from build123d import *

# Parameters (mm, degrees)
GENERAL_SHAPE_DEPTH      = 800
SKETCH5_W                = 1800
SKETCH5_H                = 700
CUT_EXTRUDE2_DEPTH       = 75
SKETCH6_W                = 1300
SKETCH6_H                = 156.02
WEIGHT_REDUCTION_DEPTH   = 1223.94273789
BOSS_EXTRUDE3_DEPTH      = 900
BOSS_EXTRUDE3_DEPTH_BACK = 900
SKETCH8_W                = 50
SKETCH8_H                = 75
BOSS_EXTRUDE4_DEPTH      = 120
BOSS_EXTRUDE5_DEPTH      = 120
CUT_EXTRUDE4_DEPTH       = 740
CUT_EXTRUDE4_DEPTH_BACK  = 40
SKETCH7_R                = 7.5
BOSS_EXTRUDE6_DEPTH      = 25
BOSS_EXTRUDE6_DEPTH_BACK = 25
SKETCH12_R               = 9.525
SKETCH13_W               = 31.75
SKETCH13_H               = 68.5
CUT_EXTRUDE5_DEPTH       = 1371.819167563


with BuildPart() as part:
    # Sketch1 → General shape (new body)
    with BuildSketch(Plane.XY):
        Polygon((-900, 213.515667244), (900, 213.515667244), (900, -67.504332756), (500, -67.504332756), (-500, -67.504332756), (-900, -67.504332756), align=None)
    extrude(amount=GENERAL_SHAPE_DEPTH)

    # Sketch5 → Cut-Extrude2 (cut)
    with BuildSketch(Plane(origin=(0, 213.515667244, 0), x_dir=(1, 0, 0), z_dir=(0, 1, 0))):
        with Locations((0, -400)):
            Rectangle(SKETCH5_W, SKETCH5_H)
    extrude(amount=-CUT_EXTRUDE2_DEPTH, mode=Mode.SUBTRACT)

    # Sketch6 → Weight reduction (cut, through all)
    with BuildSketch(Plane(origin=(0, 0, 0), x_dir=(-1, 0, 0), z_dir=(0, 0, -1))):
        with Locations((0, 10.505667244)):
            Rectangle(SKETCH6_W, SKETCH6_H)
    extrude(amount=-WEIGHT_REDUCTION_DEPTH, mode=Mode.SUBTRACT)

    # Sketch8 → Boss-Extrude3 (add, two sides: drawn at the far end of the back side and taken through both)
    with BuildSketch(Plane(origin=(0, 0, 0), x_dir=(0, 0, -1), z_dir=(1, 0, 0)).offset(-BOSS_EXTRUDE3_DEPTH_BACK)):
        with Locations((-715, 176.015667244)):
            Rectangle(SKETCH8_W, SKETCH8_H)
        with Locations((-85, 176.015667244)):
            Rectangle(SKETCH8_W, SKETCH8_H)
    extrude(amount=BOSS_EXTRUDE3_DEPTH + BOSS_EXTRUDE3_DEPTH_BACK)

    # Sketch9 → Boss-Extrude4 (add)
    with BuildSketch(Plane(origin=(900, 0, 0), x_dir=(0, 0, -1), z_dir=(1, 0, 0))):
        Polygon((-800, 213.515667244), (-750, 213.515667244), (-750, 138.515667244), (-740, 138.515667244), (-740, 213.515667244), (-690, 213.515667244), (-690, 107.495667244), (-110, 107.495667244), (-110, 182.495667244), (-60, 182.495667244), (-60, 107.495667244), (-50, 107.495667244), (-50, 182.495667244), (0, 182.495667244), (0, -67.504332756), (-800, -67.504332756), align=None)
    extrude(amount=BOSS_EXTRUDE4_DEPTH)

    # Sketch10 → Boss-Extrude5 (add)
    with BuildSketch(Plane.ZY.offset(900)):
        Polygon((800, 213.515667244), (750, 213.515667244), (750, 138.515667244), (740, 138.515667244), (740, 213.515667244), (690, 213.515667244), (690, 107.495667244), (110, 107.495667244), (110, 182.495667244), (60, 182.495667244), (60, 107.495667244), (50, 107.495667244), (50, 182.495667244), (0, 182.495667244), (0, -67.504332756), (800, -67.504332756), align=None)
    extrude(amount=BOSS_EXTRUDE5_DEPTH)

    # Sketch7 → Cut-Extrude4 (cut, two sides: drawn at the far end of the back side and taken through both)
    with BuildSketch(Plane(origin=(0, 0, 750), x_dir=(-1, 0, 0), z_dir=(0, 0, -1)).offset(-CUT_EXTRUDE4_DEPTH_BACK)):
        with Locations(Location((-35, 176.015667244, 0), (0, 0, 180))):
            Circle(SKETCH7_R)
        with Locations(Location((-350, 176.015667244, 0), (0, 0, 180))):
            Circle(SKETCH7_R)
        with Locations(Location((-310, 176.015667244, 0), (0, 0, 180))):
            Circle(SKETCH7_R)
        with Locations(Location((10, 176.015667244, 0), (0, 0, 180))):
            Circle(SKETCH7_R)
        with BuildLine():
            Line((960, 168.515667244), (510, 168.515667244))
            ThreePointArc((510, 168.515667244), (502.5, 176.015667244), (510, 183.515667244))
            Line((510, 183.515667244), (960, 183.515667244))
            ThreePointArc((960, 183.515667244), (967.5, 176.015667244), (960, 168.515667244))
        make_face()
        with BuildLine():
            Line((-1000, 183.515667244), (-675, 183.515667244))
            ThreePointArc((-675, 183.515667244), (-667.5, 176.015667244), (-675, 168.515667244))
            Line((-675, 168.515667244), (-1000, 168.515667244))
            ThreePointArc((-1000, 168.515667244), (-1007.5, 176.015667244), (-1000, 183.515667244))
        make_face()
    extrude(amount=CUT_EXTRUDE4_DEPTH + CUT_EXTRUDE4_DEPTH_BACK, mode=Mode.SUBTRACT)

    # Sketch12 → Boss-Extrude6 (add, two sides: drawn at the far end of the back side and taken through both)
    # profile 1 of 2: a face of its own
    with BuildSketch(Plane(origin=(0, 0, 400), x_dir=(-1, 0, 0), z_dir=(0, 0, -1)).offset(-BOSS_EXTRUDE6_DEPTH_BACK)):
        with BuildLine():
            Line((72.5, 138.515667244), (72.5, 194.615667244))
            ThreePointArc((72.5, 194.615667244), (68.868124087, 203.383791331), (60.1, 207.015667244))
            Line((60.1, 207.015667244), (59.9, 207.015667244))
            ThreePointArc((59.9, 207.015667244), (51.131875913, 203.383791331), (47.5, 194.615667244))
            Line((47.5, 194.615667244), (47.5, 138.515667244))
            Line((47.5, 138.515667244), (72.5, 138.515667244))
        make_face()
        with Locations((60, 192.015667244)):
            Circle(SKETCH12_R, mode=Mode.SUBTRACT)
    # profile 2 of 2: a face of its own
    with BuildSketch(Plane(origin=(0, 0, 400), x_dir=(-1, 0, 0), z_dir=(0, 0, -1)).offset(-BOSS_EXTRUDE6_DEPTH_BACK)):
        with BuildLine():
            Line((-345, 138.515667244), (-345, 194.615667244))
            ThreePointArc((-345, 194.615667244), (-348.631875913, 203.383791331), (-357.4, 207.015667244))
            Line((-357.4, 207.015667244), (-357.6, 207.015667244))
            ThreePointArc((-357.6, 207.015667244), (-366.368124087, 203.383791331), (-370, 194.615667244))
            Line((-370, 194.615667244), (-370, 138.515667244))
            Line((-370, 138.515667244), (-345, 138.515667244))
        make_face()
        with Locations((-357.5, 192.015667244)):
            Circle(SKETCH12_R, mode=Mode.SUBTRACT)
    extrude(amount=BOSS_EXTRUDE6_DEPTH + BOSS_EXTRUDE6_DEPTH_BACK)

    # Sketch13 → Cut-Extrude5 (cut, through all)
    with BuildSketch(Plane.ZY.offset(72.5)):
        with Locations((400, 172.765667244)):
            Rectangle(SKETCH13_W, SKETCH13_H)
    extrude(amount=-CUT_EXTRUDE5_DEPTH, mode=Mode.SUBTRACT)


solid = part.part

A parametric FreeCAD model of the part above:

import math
import FreeCAD as App
import Part
import Sketcher
from FreeCAD import Vector
Q = App.Units.Quantity

doc = App.newDocument("Part")
params = doc.addObject("Spreadsheet::Sheet", "Params")
for row, (alias, value) in enumerate([
    ("sketch1_width", "1800 mm"),
    ("sketch1_height", "281.02 mm"),
    ("pad1_length", "800 mm"),
    ("sketch2_width", "1800 mm"),
    ("sketch2_height", "700 mm"),
    ("pocket1_length", "75 mm"),
    ("sketch3_width", "1300 mm"),
    ("sketch3_height", "156.02 mm"),
    ("sketch4_width", "75 mm"),
    ("sketch4_height", "50 mm"),
    ("pad2_length", "900 mm"),
    ("pad2_length2", "900 mm"),
    ("sketch5_width", "250 mm"),
    ("sketch5_width2", "75 mm"),
    ("sketch5_height", "50 mm"),
    ("sketch5_height2", "800 mm"),
    ("sketch5_height3", "10 mm"),
    ("pad3_length", "120 mm"),
    ("sketch6_width", "75 mm"),
    ("sketch6_width2", "250 mm"),
    ("sketch6_height", "50 mm"),
    ("sketch6_height2", "10 mm"),
    ("sketch6_height3", "580 mm"),
    ("pad4_length", "120 mm"),
    ("sketch7_diameter", "15 mm"),
    ("sketch7_width", "450 mm"),
    ("sketch7_width2", "325 mm"),
    ("pocket3_length", "740 mm"),
    ("pocket3_length2", "40 mm"),
    ("sketch8_radius", "12.4 mm"),
    ("sketch8_diameter", "19.05 mm"),
    ("sketch8_width", "25 mm"),
    ("sketch8_height", "56.1 mm"),
    ("pad5_length", "25 mm"),
    ("pad5_length2", "25 mm"),
    ("sketch9_width", "68.5 mm"),
    ("sketch9_height", "31.75 mm"),
], start=1):
    params.set(f"A{row}", alias)
    params.set(f"B{row}", "=" + value)
    params.setAlias(f"B{row}", alias)

body = doc.addObject("PartDesign::Body", "Body")

# Sketch on XY plane
sketch1 = body.newObject("Sketcher::SketchObject", "Sketch")
sketch1.AttachmentSupport = (doc.getObject("XY_Plane"), [""])
sketch1.MapMode = "FlatFace"
sketch1.addGeometry(Part.LineSegment(Vector(900, 213.515667, 0), Vector(-900, 213.515667, 0)), False)
sketch1.addGeometry(Part.LineSegment(Vector(-900, 213.515667, 0), Vector(-900, -67.504333, 0)), False)
sketch1.addGeometry(Part.LineSegment(Vector(-900, -67.504333, 0), Vector(900, -67.504333, 0)), False)
sketch1.addGeometry(Part.LineSegment(Vector(900, -67.504333, 0), Vector(900, 213.515667, 0)), False)
sketch1.addConstraint(Sketcher.Constraint("Coincident", 0, 2, 1, 1))
sketch1.addConstraint(Sketcher.Constraint("Coincident", 1, 2, 2, 1))
sketch1.addConstraint(Sketcher.Constraint("Coincident", 2, 2, 3, 1))
sketch1.addConstraint(Sketcher.Constraint("Coincident", 3, 2, 0, 1))
sketch1.addConstraint(Sketcher.Constraint("Horizontal", 0))
sketch1.addConstraint(Sketcher.Constraint("Vertical", 1))
sketch1.addConstraint(Sketcher.Constraint("Horizontal", 2))
sketch1.addConstraint(Sketcher.Constraint("Vertical", 3))
sketch1.addConstraint(Sketcher.Constraint("DistanceX", 0, 2, 0, 1, Q("1800 mm")))
sketch1.addConstraint(Sketcher.Constraint("DistanceX", 0, 2, -1, 1, Q("900 mm")))
sketch1.addConstraint(Sketcher.Constraint("DistanceY", 1, 2, 1, 1, Q("281.02 mm")))
sketch1.addConstraint(Sketcher.Constraint("DistanceY", -1, 1, 0, 2, Q("213.515667 mm")))
sketch1.setExpression("Constraints[8]", "Params.sketch1_width")
sketch1.setExpression("Constraints[10]", "Params.sketch1_height")
pad1 = body.newObject("PartDesign::Pad", "Pad")
pad1.Profile = sketch1
pad1.setExpression("Length", "Params.pad1_length")

# Sketch on XZ plane
sketch2 = body.newObject("Sketcher::SketchObject", "Sketch001")
sketch2.AttachmentSupport = (doc.getObject("XZ_Plane"), [""])
sketch2.MapMode = "FlatFace"
sketch2.AttachmentOffset = App.Placement(Vector(0, 0, -213.515667), App.Rotation())
sketch2.addGeometry(Part.LineSegment(Vector(-900, 50, 0), Vector(-900, 750, 0)), False)
sketch2.addGeometry(Part.LineSegment(Vector(-900, 750, 0), Vector(900, 750, 0)), False)
sketch2.addGeometry(Part.LineSegment(Vector(900, 750, 0), Vector(900, 50, 0)), False)
sketch2.addGeometry(Part.LineSegment(Vector(900, 50, 0), Vector(-900, 50, 0)), False)
sketch2.addConstraint(Sketcher.Constraint("Coincident", 0, 2, 1, 1))
sketch2.addConstraint(Sketcher.Constraint("Coincident", 1, 2, 2, 1))
sketch2.addConstraint(Sketcher.Constraint("Coincident", 2, 2, 3, 1))
sketch2.addConstraint(Sketcher.Constraint("Coincident", 3, 2, 0, 1))
sketch2.addConstraint(Sketcher.Constraint("Vertical", 0))
sketch2.addConstraint(Sketcher.Constraint("Horizontal", 1))
sketch2.addConstraint(Sketcher.Constraint("Vertical", 2))
sketch2.addConstraint(Sketcher.Constraint("Horizontal", 3))
sketch2.addConstraint(Sketcher.Constraint("DistanceX", 1, 1, 1, 2, Q("1800 mm")))
sketch2.addConstraint(Sketcher.Constraint("DistanceY", 0, 1, 0, 2, Q("700 mm")))
sketch2.addConstraint(Sketcher.Constraint("DistanceX", 0, 2, -1, 1, Q("900 mm")))
sketch2.addConstraint(Sketcher.Constraint("DistanceY", -1, 1, 0, 2, Q("750 mm")))
sketch2.setExpression("Constraints[8]", "Params.sketch2_width")
sketch2.setExpression("Constraints[9]", "Params.sketch2_height")
pocket1 = body.newObject("PartDesign::Pocket", "Pocket")
pocket1.Profile = sketch2
pocket1.setExpression("Length", "Params.pocket1_length")
pocket1.Reversed = True

# Sketch on XY plane
sketch3 = body.newObject("Sketcher::SketchObject", "Sketch002")
sketch3.AttachmentSupport = (doc.getObject("XY_Plane"), [""])
sketch3.MapMode = "FlatFace"
sketch3.addGeometry(Part.LineSegment(Vector(650, 88.515667, 0), Vector(650, -67.504333, 0)), False)
sketch3.addGeometry(Part.LineSegment(Vector(650, -67.504333, 0), Vector(-650, -67.504333, 0)), False)
sketch3.addGeometry(Part.LineSegment(Vector(-650, -67.504333, 0), Vector(-650, 88.515667, 0)), False)
sketch3.addGeometry(Part.LineSegment(Vector(-650, 88.515667, 0), Vector(650, 88.515667, 0)), False)
sketch3.addConstraint(Sketcher.Constraint("Coincident", 0, 2, 1, 1))
sketch3.addConstraint(Sketcher.Constraint("Coincident", 1, 2, 2, 1))
sketch3.addConstraint(Sketcher.Constraint("Coincident", 2, 2, 3, 1))
sketch3.addConstraint(Sketcher.Constraint("Coincident", 3, 2, 0, 1))
sketch3.addConstraint(Sketcher.Constraint("Vertical", 0))
sketch3.addConstraint(Sketcher.Constraint("Horizontal", 1))
sketch3.addConstraint(Sketcher.Constraint("Vertical", 2))
sketch3.addConstraint(Sketcher.Constraint("Horizontal", 3))
sketch3.addConstraint(Sketcher.Constraint("DistanceX", 1, 2, 1, 1, Q("1300 mm")))
sketch3.addConstraint(Sketcher.Constraint("DistanceX", -1, 1, 0, 2, Q("650 mm")))
sketch3.addConstraint(Sketcher.Constraint("DistanceY", 0, 2, 0, 1, Q("156.02 mm")))
sketch3.addConstraint(Sketcher.Constraint("DistanceY", 0, 2, -1, 1, Q("67.504333 mm")))
sketch3.setExpression("Constraints[8]", "Params.sketch3_width")
sketch3.setExpression("Constraints[10]", "Params.sketch3_height")
pocket2 = body.newObject("PartDesign::Pocket", "Pocket001")
pocket2.Profile = sketch3
pocket2.Type = "ThroughAll"
pocket2.Reversed = True

# Sketch on YZ plane
sketch4 = body.newObject("Sketcher::SketchObject", "Sketch003")
sketch4.AttachmentSupport = (doc.getObject("YZ_Plane"), [""])
sketch4.MapMode = "FlatFace"
sketch4.addGeometry(Part.LineSegment(Vector(213.515667, 740, 0), Vector(138.515667, 740, 0)), False)
sketch4.addGeometry(Part.LineSegment(Vector(138.515667, 740, 0), Vector(138.515667, 690, 0)), False)
sketch4.addGeometry(Part.LineSegment(Vector(138.515667, 690, 0), Vector(213.515667, 690, 0)), False)
sketch4.addGeometry(Part.LineSegment(Vector(213.515667, 690, 0), Vector(213.515667, 740, 0)), False)
sketch4.addGeometry(Part.LineSegment(Vector(213.515667, 110, 0), Vector(138.515667, 110, 0)), False)
sketch4.addGeometry(Part.LineSegment(Vector(138.515667, 110, 0), Vector(138.515667, 60, 0)), False)
sketch4.addGeometry(Part.LineSegment(Vector(138.515667, 60, 0), Vector(213.515667, 60, 0)), False)
sketch4.addGeometry(Part.LineSegment(Vector(213.515667, 60, 0), Vector(213.515667, 110, 0)), False)
sketch4.addConstraint(Sketcher.Constraint("Coincident", 0, 2, 1, 1))
sketch4.addConstraint(Sketcher.Constraint("Coincident", 1, 2, 2, 1))
sketch4.addConstraint(Sketcher.Constraint("Coincident", 2, 2, 3, 1))
sketch4.addConstraint(Sketcher.Constraint("Coincident", 3, 2, 0, 1))
sketch4.addConstraint(Sketcher.Constraint("Coincident", 4, 2, 5, 1))
sketch4.addConstraint(Sketcher.Constraint("Coincident", 5, 2, 6, 1))
sketch4.addConstraint(Sketcher.Constraint("Coincident", 6, 2, 7, 1))
sketch4.addConstraint(Sketcher.Constraint("Coincident", 7, 2, 4, 1))
sketch4.addConstraint(Sketcher.Constraint("Horizontal", 0))
sketch4.addConstraint(Sketcher.Constraint("Vertical", 1))
sketch4.addConstraint(Sketcher.Constraint("Horizontal", 2))
sketch4.addConstraint(Sketcher.Constraint("Vertical", 3))
sketch4.addConstraint(Sketcher.Constraint("Horizontal", 4))
sketch4.addConstraint(Sketcher.Constraint("Vertical", 5))
sketch4.addConstraint(Sketcher.Constraint("Horizontal", 6))
sketch4.addConstraint(Sketcher.Constraint("Vertical", 7))
sketch4.addConstraint(Sketcher.Constraint("Vertical", 1, 2, 4, 2))
sketch4.addConstraint(Sketcher.Constraint("Vertical", 3, 2, 6, 2))
sketch4.addConstraint(Sketcher.Constraint("Equal", 3, 5))
sketch4.addConstraint(Sketcher.Constraint("DistanceX", 0, 2, 0, 1, Q("75 mm")))
sketch4.addConstraint(Sketcher.Constraint("DistanceY", 1, 2, 1, 1, Q("50 mm")))
sketch4.addConstraint(Sketcher.Constraint("DistanceY", -1, 1, 0, 2, Q("740 mm")))
sketch4.addConstraint(Sketcher.Constraint("DistanceY", -1, 1, 4, 2, Q("110 mm")))
sketch4.addConstraint(Sketcher.Constraint("DistanceX", -1, 1, 0, 2, Q("138.515667 mm")))
sketch4.setExpression("Constraints[19]", "Params.sketch4_width")
sketch4.setExpression("Constraints[20]", "Params.sketch4_height")
pad2 = body.newObject("PartDesign::Pad", "Pad001")
pad2.Profile = sketch4
pad2.Type = "TwoLengths"
pad2.setExpression("Length", "Params.pad2_length")
pad2.setExpression("Length2", "Params.pad2_length2")

# Sketch on YZ plane
sketch5 = body.newObject("Sketcher::SketchObject", "Sketch004")
sketch5.AttachmentSupport = (doc.getObject("YZ_Plane"), [""])
sketch5.MapMode = "FlatFace"
sketch5.AttachmentOffset = App.Placement(Vector(0, 0, 900), App.Rotation())
sketch5.addGeometry(Part.LineSegment(Vector(213.515667, 750, 0), Vector(213.515667, 800, 0)), False)
sketch5.addGeometry(Part.LineSegment(Vector(213.515667, 800, 0), Vector(-67.504333, 800, 0)), False)
sketch5.addGeometry(Part.LineSegment(Vector(-67.504333, 800, 0), Vector(-67.504333, 0, 0)), False)
sketch5.addGeometry(Part.LineSegment(Vector(-67.504333, 0, 0), Vector(182.495667, 0, 0)), False)
sketch5.addGeometry(Part.LineSegment(Vector(182.495667, 0, 0), Vector(182.495667, 50, 0)), False)
sketch5.addGeometry(Part.LineSegment(Vector(182.495667, 50, 0), Vector(107.495667, 50, 0)), False)
sketch5.addGeometry(Part.LineSegment(Vector(107.495667, 50, 0), Vector(107.495667, 60, 0)), False)
sketch5.addGeometry(Part.LineSegment(Vector(107.495667, 60, 0), Vector(182.495667, 60, 0)), False)
sketch5.addGeometry(Part.LineSegment(Vector(182.495667, 60, 0), Vector(182.495667, 110, 0)), False)
sketch5.addGeometry(Part.LineSegment(Vector(182.495667, 110, 0), Vector(107.495667, 110, 0)), False)
sketch5.addGeometry(Part.LineSegment(Vector(107.495667, 110, 0), Vector(107.495667, 690, 0)), False)
sketch5.addGeometry(Part.LineSegment(Vector(107.495667, 690, 0), Vector(213.515667, 690, 0)), False)
sketch5.addGeometry(Part.LineSegment(Vector(213.515667, 690, 0), Vector(213.515667, 740, 0)), False)
sketch5.addGeometry(Part.LineSegment(Vector(213.515667, 740, 0), Vector(138.515667, 740, 0)), False)
sketch5.addGeometry(Part.LineSegment(Vector(138.515667, 740, 0), Vector(138.515667, 750, 0)), False)
sketch5.addGeometry(Part.LineSegment(Vector(138.515667, 750, 0), Vector(213.515667, 750, 0)), False)
sketch5.addConstraint(Sketcher.Constraint("Coincident", 0, 2, 1, 1))
sketch5.addConstraint(Sketcher.Constraint("Coincident", 1, 2, 2, 1))
sketch5.addConstraint(Sketcher.Constraint("Coincident", 2, 2, 3, 1))
sketch5.addConstraint(Sketcher.Constraint("Coincident", 3, 2, 4, 1))
sketch5.addConstraint(Sketcher.Constraint("Coincident", 4, 2, 5, 1))
sketch5.addConstraint(Sketcher.Constraint("Coincident", 5, 2, 6, 1))
sketch5.addConstraint(Sketcher.Constraint("Coincident", 6, 2, 7, 1))
sketch5.addConstraint(Sketcher.Constraint("Coincident", 7, 2, 8, 1))
sketch5.addConstraint(Sketcher.Constraint("Coincident", 8, 2, 9, 1))
sketch5.addConstraint(Sketcher.Constraint("Coincident", 9, 2, 10, 1))
sketch5.addConstraint(Sketcher.Constraint("Coincident", 10, 2, 11, 1))
sketch5.addConstraint(Sketcher.Constraint("Coincident", 11, 2, 12, 1))
sketch5.addConstraint(Sketcher.Constraint("Coincident", 12, 2, 13, 1))
sketch5.addConstraint(Sketcher.Constraint("Coincident", 13, 2, 14, 1))
sketch5.addConstraint(Sketcher.Constraint("Coincident", 14, 2, 15, 1))
sketch5.addConstraint(Sketcher.Constraint("Coincident", 15, 2, 0, 1))
sketch5.addConstraint(Sketcher.Constraint("Vertical", 0))
sketch5.addConstraint(Sketcher.Constraint("Horizontal", 1))
sketch5.addConstraint(Sketcher.Constraint("Vertical", 2))
sketch5.addConstraint(Sketcher.Constraint("Horizontal", 3))
sketch5.addConstraint(Sketcher.Constraint("Vertical", 4))
sketch5.addConstraint(Sketcher.Constraint("Horizontal", 5))
sketch5.addConstraint(Sketcher.Constraint("Vertical", 6))
sketch5.addConstraint(Sketcher.Constraint("Horizontal", 7))
sketch5.addConstraint(Sketcher.Constraint("Vertical", 8))
sketch5.addConstraint(Sketcher.Constraint("Horizontal", 9))
sketch5.addConstraint(Sketcher.Constraint("Vertical", 10))
sketch5.addConstraint(Sketcher.Constraint("Horizontal", 11))
sketch5.addConstraint(Sketcher.Constraint("Vertical", 12))
sketch5.addConstraint(Sketcher.Constraint("Horizontal", 13))
sketch5.addConstraint(Sketcher.Constraint("Vertical", 14))
sketch5.addConstraint(Sketcher.Constraint("Horizontal", 15))
sketch5.addConstraint(Sketcher.Constraint("PointOnObject", 2, 2, -1))
sketch5.addConstraint(Sketcher.Constraint("Vertical", 4, 2, 7, 2))
sketch5.addConstraint(Sketcher.Constraint("Vertical", 6, 2, 9, 2))
sketch5.addConstraint(Sketcher.Constraint("Vertical", 0, 2, 11, 2))
sketch5.addConstraint(Sketcher.Constraint("Equal", 9, 13))
sketch5.addConstraint(Sketcher.Constraint("Equal", 0, 4))
sketch5.addConstraint(Sketcher.Constraint("Equal", 4, 8))
sketch5.addConstraint(Sketcher.Constraint("Equal", 8, 12))
sketch5.addConstraint(Sketcher.Constraint("Equal", 6, 14))
sketch5.addConstraint(Sketcher.Constraint("DistanceX", 3, 1, 3, 2, Q("250 mm")))
sketch5.addConstraint(Sketcher.Constraint("DistanceX", 5, 2, 5, 1, Q("75 mm")))
sketch5.addConstraint(Sketcher.Constraint("DistanceY", 0, 1, 0, 2, Q("50 mm")))
sketch5.addConstraint(Sketcher.Constraint("DistanceY", 2, 2, 2, 1, Q("800 mm")))
sketch5.addConstraint(Sketcher.Constraint("DistanceY", 6, 1, 6, 2, Q("10 mm")))
sketch5.addConstraint(Sketcher.Constraint("DistanceX", 1, 2, 1, 1, Q("281.02 mm")))
sketch5.addConstraint(Sketcher.Constraint("DistanceX", -1, 1, 0, 2, Q("213.515667 mm")))
sketch5.setExpression("Constraints[41]", "Params.sketch5_width")
sketch5.setExpression("Constraints[42]", "Params.sketch5_width2")
sketch5.setExpression("Constraints[43]", "Params.sketch5_height")
sketch5.setExpression("Constraints[44]", "Params.sketch5_height2")
sketch5.setExpression("Constraints[45]", "Params.sketch5_height3")
pad3 = body.newObject("PartDesign::Pad", "Pad002")
pad3.Profile = sketch5
pad3.setExpression("Length", "Params.pad3_length")

# Sketch on YZ plane
sketch6 = body.newObject("Sketcher::SketchObject", "Sketch005")
sketch6.AttachmentSupport = (doc.getObject("YZ_Plane"), [""])
sketch6.MapMode = "FlatFace"
sketch6.AttachmentOffset = App.Placement(Vector(0, 0, -900), App.Rotation())
sketch6.addGeometry(Part.LineSegment(Vector(213.515667, 800, 0), Vector(213.515667, 750, 0)), False)
sketch6.addGeometry(Part.LineSegment(Vector(213.515667, 750, 0), Vector(138.515667, 750, 0)), False)
sketch6.addGeometry(Part.LineSegment(Vector(138.515667, 750, 0), Vector(138.515667, 740, 0)), False)
sketch6.addGeometry(Part.LineSegment(Vector(138.515667, 740, 0), Vector(213.515667, 740, 0)), False)
sketch6.addGeometry(Part.LineSegment(Vector(213.515667, 740, 0), Vector(213.515667, 690, 0)), False)
sketch6.addGeometry(Part.LineSegment(Vector(213.515667, 690, 0), Vector(107.495667, 690, 0)), False)
sketch6.addGeometry(Part.LineSegment(Vector(107.495667, 690, 0), Vector(107.495667, 110, 0)), False)
sketch6.addGeometry(Part.LineSegment(Vector(107.495667, 110, 0), Vector(182.495667, 110, 0)), False)
sketch6.addGeometry(Part.LineSegment(Vector(182.495667, 110, 0), Vector(182.495667, 60, 0)), False)
sketch6.addGeometry(Part.LineSegment(Vector(182.495667, 60, 0), Vector(107.495667, 60, 0)), False)
sketch6.addGeometry(Part.LineSegment(Vector(107.495667, 60, 0), Vector(107.495667, 50, 0)), False)
sketch6.addGeometry(Part.LineSegment(Vector(107.495667, 50, 0), Vector(182.495667, 50, 0)), False)
sketch6.addGeometry(Part.LineSegment(Vector(182.495667, 50, 0), Vector(182.495667, 0, 0)), False)
sketch6.addGeometry(Part.LineSegment(Vector(182.495667, 0, 0), Vector(-67.504333, 0, 0)), False)
sketch6.addGeometry(Part.LineSegment(Vector(-67.504333, 0, 0), Vector(-67.504333, 800, 0)), False)
sketch6.addGeometry(Part.LineSegment(Vector(-67.504333, 800, 0), Vector(213.515667, 800, 0)), False)
sketch6.addConstraint(Sketcher.Constraint("Coincident", 0, 2, 1, 1))
sketch6.addConstraint(Sketcher.Constraint("Coincident", 1, 2, 2, 1))
sketch6.addConstraint(Sketcher.Constraint("Coincident", 2, 2, 3, 1))
sketch6.addConstraint(Sketcher.Constraint("Coincident", 3, 2, 4, 1))
sketch6.addConstraint(Sketcher.Constraint("Coincident", 4, 2, 5, 1))
sketch6.addConstraint(Sketcher.Constraint("Coincident", 5, 2, 6, 1))
sketch6.addConstraint(Sketcher.Constraint("Coincident", 6, 2, 7, 1))
sketch6.addConstraint(Sketcher.Constraint("Coincident", 7, 2, 8, 1))
sketch6.addConstraint(Sketcher.Constraint("Coincident", 8, 2, 9, 1))
sketch6.addConstraint(Sketcher.Constraint("Coincident", 9, 2, 10, 1))
sketch6.addConstraint(Sketcher.Constraint("Coincident", 10, 2, 11, 1))
sketch6.addConstraint(Sketcher.Constraint("Coincident", 11, 2, 12, 1))
sketch6.addConstraint(Sketcher.Constraint("Coincident", 12, 2, 13, 1))
sketch6.addConstraint(Sketcher.Constraint("Coincident", 13, 2, 14, 1))
sketch6.addConstraint(Sketcher.Constraint("Coincident", 14, 2, 15, 1))
sketch6.addConstraint(Sketcher.Constraint("Coincident", 15, 2, 0, 1))
sketch6.addConstraint(Sketcher.Constraint("Vertical", 0))
sketch6.addConstraint(Sketcher.Constraint("Horizontal", 1))
sketch6.addConstraint(Sketcher.Constraint("Vertical", 2))
sketch6.addConstraint(Sketcher.Constraint("Horizontal", 3))
sketch6.addConstraint(Sketcher.Constraint("Vertical", 4))
sketch6.addConstraint(Sketcher.Constraint("Horizontal", 5))
sketch6.addConstraint(Sketcher.Constraint("Vertical", 6))
sketch6.addConstraint(Sketcher.Constraint("Horizontal", 7))
sketch6.addConstraint(Sketcher.Constraint("Vertical", 8))
sketch6.addConstraint(Sketcher.Constraint("Horizontal", 9))
sketch6.addConstraint(Sketcher.Constraint("Vertical", 10))
sketch6.addConstraint(Sketcher.Constraint("Horizontal", 11))
sketch6.addConstraint(Sketcher.Constraint("Vertical", 12))
sketch6.addConstraint(Sketcher.Constraint("Horizontal", 13))
sketch6.addConstraint(Sketcher.Constraint("Vertical", 14))
sketch6.addConstraint(Sketcher.Constraint("Horizontal", 15))
sketch6.addConstraint(Sketcher.Constraint("PointOnObject", 12, 2, -1))
sketch6.addConstraint(Sketcher.Constraint("Vertical", 0, 2, 3, 2))
sketch6.addConstraint(Sketcher.Constraint("Vertical", 6, 2, 9, 2))
sketch6.addConstraint(Sketcher.Constraint("Vertical", 8, 2, 11, 2))
sketch6.addConstraint(Sketcher.Constraint("Equal", 3, 7))
sketch6.addConstraint(Sketcher.Constraint("Equal", 0, 4))
sketch6.addConstraint(Sketcher.Constraint("Equal", 4, 8))
sketch6.addConstraint(Sketcher.Constraint("Equal", 2, 10))
sketch6.addConstraint(Sketcher.Constraint("Equal", 8, 12))
sketch6.addConstraint(Sketcher.Constraint("DistanceX", 1, 2, 1, 1, Q("75 mm")))
sketch6.addConstraint(Sketcher.Constraint("DistanceX", 13, 2, 13, 1, Q("250 mm")))
sketch6.addConstraint(Sketcher.Constraint("DistanceY", 0, 2, 0, 1, Q("50 mm")))
sketch6.addConstraint(Sketcher.Constraint("DistanceY", 2, 2, 2, 1, Q("10 mm")))
sketch6.addConstraint(Sketcher.Constraint("DistanceY", 6, 2, 6, 1, Q("580 mm")))
sketch6.addConstraint(Sketcher.Constraint("DistanceX", 5, 2, 5, 1, Q("106.02 mm")))
sketch6.addConstraint(Sketcher.Constraint("DistanceX", -1, 1, 0, 2, Q("213.515667 mm")))
sketch6.setExpression("Constraints[41]", "Params.sketch6_width")
sketch6.setExpression("Constraints[42]", "Params.sketch6_width2")
sketch6.setExpression("Constraints[43]", "Params.sketch6_height")
sketch6.setExpression("Constraints[44]", "Params.sketch6_height2")
sketch6.setExpression("Constraints[45]", "Params.sketch6_height3")
pad4 = body.newObject("PartDesign::Pad", "Pad003")
pad4.Profile = sketch6
pad4.setExpression("Length", "Params.pad4_length")
pad4.Reversed = True

# Sketch on XY plane
sketch7 = body.newObject("Sketcher::SketchObject", "Sketch006")
sketch7.AttachmentSupport = (doc.getObject("XY_Plane"), [""])
sketch7.MapMode = "FlatFace"
sketch7.AttachmentOffset = App.Placement(Vector(0, 0, 750), App.Rotation())
sketch7.addGeometry(Part.Circle(Vector(35, 176.015667, 0), Vector(0, 0, 1), 7.5), False)
sketch7.addGeometry(Part.Circle(Vector(350, 176.015667, 0), Vector(0, 0, 1), 7.5), False)
sketch7.addGeometry(Part.Circle(Vector(310, 176.015667, 0), Vector(0, 0, 1), 7.5), False)
sketch7.addGeometry(Part.Circle(Vector(-10, 176.015667, 0), Vector(0, 0, 1), 7.5), False)
sketch7.addGeometry(Part.LineSegment(Vector(-510, 168.515667, 0), Vector(-960, 168.515667, 0)), False)
sketch7.addGeometry(Part.ArcOfCircle(Part.Circle(Vector(-960, 176.015667, 0), Vector(0, 0, 1), 7.5), math.radians(90), math.radians(270)), False)
sketch7.addGeometry(Part.LineSegment(Vector(-960, 183.515667, 0), Vector(-510, 183.515667, 0)), False)
sketch7.addGeometry(Part.ArcOfCircle(Part.Circle(Vector(-510, 176.015667, 0), Vector(0, 0, 1), 7.5), math.radians(-90), math.radians(90)), False)
sketch7.addGeometry(Part.LineSegment(Vector(675, 183.515667, 0), Vector(1000, 183.515667, 0)), False)
sketch7.addGeometry(Part.ArcOfCircle(Part.Circle(Vector(1000, 176.015667, 0), Vector(0, 0, 1), 7.5), math.radians(-90), math.radians(90)), False)
sketch7.addGeometry(Part.LineSegment(Vector(1000, 168.515667, 0), Vector(675, 168.515667, 0)), False)
sketch7.addGeometry(Part.ArcOfCircle(Part.Circle(Vector(675, 176.015667, 0), Vector(0, 0, 1), 7.5), math.radians(90), math.radians(270)), False)
sketch7.addConstraint(Sketcher.Constraint("Tangent", 4, 2, 5, 2))
sketch7.addConstraint(Sketcher.Constraint("Tangent", 5, 1, 6, 1))
sketch7.addConstraint(Sketcher.Constraint("Tangent", 6, 2, 7, 2))
sketch7.addConstraint(Sketcher.Constraint("Tangent", 7, 1, 4, 1))
sketch7.addConstraint(Sketcher.Constraint("Tangent", 8, 2, 9, 2))
sketch7.addConstraint(Sketcher.Constraint("Tangent", 9, 1, 10, 1))
sketch7.addConstraint(Sketcher.Constraint("Tangent", 10, 2, 11, 2))
sketch7.addConstraint(Sketcher.Constraint("Tangent", 11, 1, 8, 1))
sketch7.addConstraint(Sketcher.Constraint("Horizontal", 4))
sketch7.addConstraint(Sketcher.Constraint("Horizontal", 6))
sketch7.addConstraint(Sketcher.Constraint("Horizontal", 8))
sketch7.addConstraint(Sketcher.Constraint("Horizontal", 10))
sketch7.addConstraint(Sketcher.Constraint("Equal", 0, 1))
sketch7.addConstraint(Sketcher.Constraint("Equal", 1, 2))
sketch7.addConstraint(Sketcher.Constraint("Equal", 2, 3))
sketch7.addConstraint(Sketcher.Constraint("Equal", 3, 5))
sketch7.addConstraint(Sketcher.Constraint("Equal", 7, 9))
sketch7.addConstraint(Sketcher.Constraint("Horizontal", 0, 3, 1, 3))
sketch7.addConstraint(Sketcher.Constraint("Horizontal", 1, 3, 2, 3))
sketch7.addConstraint(Sketcher.Constraint("Horizontal", 2, 3, 3, 3))
sketch7.addConstraint(Sketcher.Constraint("Horizontal", 3, 3, 5, 3))
sketch7.addConstraint(Sketcher.Constraint("Horizontal", 7, 3, 9, 3))
sketch7.addConstraint(Sketcher.Constraint("Diameter", 0, Q("15 mm")))
sketch7.addConstraint(Sketcher.Constraint("DistanceX", 4, 2, 4, 1, Q("450 mm")))
sketch7.addConstraint(Sketcher.Constraint("DistanceX", 8, 1, 8, 2, Q("325 mm")))
sketch7.addConstraint(Sketcher.Constraint("DistanceX", -1, 1, 0, 3, Q("35 mm")))
sketch7.addConstraint(Sketcher.Constraint("DistanceX", -1, 1, 1, 3, Q("350 mm")))
sketch7.addConstraint(Sketcher.Constraint("DistanceX", -1, 1, 2, 3, Q("310 mm")))
sketch7.addConstraint(Sketcher.Constraint("DistanceX", 3, 3, -1, 1, Q("10 mm")))
sketch7.addConstraint(Sketcher.Constraint("DistanceX", 5, 3, -1, 1, Q("960 mm")))
sketch7.addConstraint(Sketcher.Constraint("DistanceX", -1, 1, 9, 3, Q("1000 mm")))
sketch7.addConstraint(Sketcher.Constraint("DistanceY", -1, 1, 0, 3, Q("176.015667 mm")))
sketch7.setExpression("Constraints[22]", "Params.sketch7_diameter")
sketch7.setExpression("Constraints[23]", "Params.sketch7_width")
sketch7.setExpression("Constraints[24]", "Params.sketch7_width2")
pocket3 = body.newObject("PartDesign::Pocket", "Pocket002")
pocket3.Profile = sketch7
pocket3.Type = "TwoLengths"
pocket3.setExpression("Length", "Params.pocket3_length")
pocket3.setExpression("Length2", "Params.pocket3_length2")

# Sketch on XY plane
sketch8 = body.newObject("Sketcher::SketchObject", "Sketch007")
sketch8.AttachmentSupport = (doc.getObject("XY_Plane"), [""])
sketch8.MapMode = "FlatFace"
sketch8.AttachmentOffset = App.Placement(Vector(0, 0, 400), App.Rotation())
sketch8.addGeometry(Part.LineSegment(Vector(-72.5, 138.515667, 0), Vector(-72.5, 194.615667, 0)), False)
sketch8.addGeometry(Part.ArcOfCircle(Part.Circle(Vector(-60.1, 194.615667, 0), Vector(0, 0, 1), 12.4), math.radians(90), math.radians(180)), False)
sketch8.addGeometry(Part.LineSegment(Vector(-60.1, 207.015667, 0), Vector(-59.9, 207.015667, 0)), False)
sketch8.addGeometry(Part.ArcOfCircle(Part.Circle(Vector(-59.9, 194.615667, 0), Vector(0, 0, 1), 12.4), math.radians(0), math.radians(90)), False)
sketch8.addGeometry(Part.LineSegment(Vector(-47.5, 194.615667, 0), Vector(-47.5, 138.515667, 0)), False)
sketch8.addGeometry(Part.LineSegment(Vector(-47.5, 138.515667, 0), Vector(-72.5, 138.515667, 0)), False)
sketch8.addGeometry(Part.Circle(Vector(-60, 192.015667, 0), Vector(0, 0, 1), 9.525), False)
sketch8.addGeometry(Part.LineSegment(Vector(345, 138.515667, 0), Vector(345, 194.615667, 0)), False)
sketch8.addGeometry(Part.ArcOfCircle(Part.Circle(Vector(357.4, 194.615667, 0), Vector(0, 0, 1), 12.4), math.radians(90), math.radians(180)), False)
sketch8.addGeometry(Part.LineSegment(Vector(357.4, 207.015667, 0), Vector(357.6, 207.015667, 0)), False)
sketch8.addGeometry(Part.ArcOfCircle(Part.Circle(Vector(357.6, 194.615667, 0), Vector(0, 0, 1), 12.4), math.radians(0), math.radians(90)), False)
sketch8.addGeometry(Part.LineSegment(Vector(370, 194.615667, 0), Vector(370, 138.515667, 0)), False)
sketch8.addGeometry(Part.LineSegment(Vector(370, 138.515667, 0), Vector(345, 138.515667, 0)), False)
sketch8.addGeometry(Part.Circle(Vector(357.5, 192.015667, 0), Vector(0, 0, 1), 9.525), False)
sketch8.addConstraint(Sketcher.Constraint("Tangent", 0, 2, 1, 2))
sketch8.addConstraint(Sketcher.Constraint("Tangent", 1, 1, 2, 1))
sketch8.addConstraint(Sketcher.Constraint("Tangent", 2, 2, 3, 2))
sketch8.addConstraint(Sketcher.Constraint("Tangent", 3, 1, 4, 1))
sketch8.addConstraint(Sketcher.Constraint("Coincident", 4, 2, 5, 1))
sketch8.addConstraint(Sketcher.Constraint("Coincident", 5, 2, 0, 1))
sketch8.addConstraint(Sketcher.Constraint("Tangent", 7, 2, 8, 2))
sketch8.addConstraint(Sketcher.Constraint("Tangent", 8, 1, 9, 1))
sketch8.addConstraint(Sketcher.Constraint("Tangent", 9, 2, 10, 2))
sketch8.addConstraint(Sketcher.Constraint("Tangent", 10, 1, 11, 1))
sketch8.addConstraint(Sketcher.Constraint("Coincident", 11, 2, 12, 1))
sketch8.addConstraint(Sketcher.Constraint("Coincident", 12, 2, 7, 1))
sketch8.addConstraint(Sketcher.Constraint("Vertical", 0))
sketch8.addConstraint(Sketcher.Constraint("Horizontal", 2))
sketch8.addConstraint(Sketcher.Constraint("Vertical", 4))
sketch8.addConstraint(Sketcher.Constraint("Horizontal", 5))
sketch8.addConstraint(Sketcher.Constraint("Vertical", 7))
sketch8.addConstraint(Sketcher.Constraint("Horizontal", 9))
sketch8.addConstraint(Sketcher.Constraint("Vertical", 11))
sketch8.addConstraint(Sketcher.Constraint("Horizontal", 12))
sketch8.addConstraint(Sketcher.Constraint("Equal", 1, 3))
sketch8.addConstraint(Sketcher.Constraint("Equal", 3, 8))
sketch8.addConstraint(Sketcher.Constraint("Equal", 8, 10))
sketch8.addConstraint(Sketcher.Constraint("Equal", 6, 13))
sketch8.addConstraint(Sketcher.Constraint("Horizontal", 3, 3, 8, 3))
sketch8.addConstraint(Sketcher.Constraint("Horizontal", 6, 3, 13, 3))
sketch8.addConstraint(Sketcher.Constraint("Horizontal", 5, 2, 11, 2))
sketch8.addConstraint(Sketcher.Constraint("Equal", 2, 9))
sketch8.addConstraint(Sketcher.Constraint("Radius", 1, Q("12.4 mm")))
sketch8.addConstraint(Sketcher.Constraint("Diameter", 6, Q("19.05 mm")))
sketch8.addConstraint(Sketcher.Constraint("DistanceX", 5, 2, 5, 1, Q("25 mm")))
sketch8.addConstraint(Sketcher.Constraint("DistanceY", 0, 1, 0, 2, Q("56.1 mm")))
sketch8.addConstraint(Sketcher.Constraint("DistanceX", 6, 3, -1, 1, Q("60 mm")))
sketch8.addConstraint(Sketcher.Constraint("DistanceX", -1, 1, 7, 2, Q("345 mm")))
sketch8.addConstraint(Sketcher.Constraint("DistanceX", 0, 2, 13, 3, Q("430 mm")))
sketch8.addConstraint(Sketcher.Constraint("DistanceY", 6, 3, 1, 1, Q("15 mm")))
sketch8.addConstraint(Sketcher.Constraint("DistanceX", 1, 3, -1, 1, Q("60.1 mm")))
sketch8.addConstraint(Sketcher.Constraint("DistanceY", -1, 1, 1, 3, Q("194.615667 mm")))
sketch8.setExpression("Constraints[28]", "Params.sketch8_radius")
sketch8.setExpression("Constraints[29]", "Params.sketch8_diameter")
sketch8.setExpression("Constraints[30]", "Params.sketch8_width")
sketch8.setExpression("Constraints[31]", "Params.sketch8_height")
pad5 = body.newObject("PartDesign::Pad", "Pad004")
pad5.Profile = sketch8
pad5.Type = "TwoLengths"
pad5.setExpression("Length", "Params.pad5_length")
pad5.setExpression("Length2", "Params.pad5_length2")
pad5.Reversed = True

# Sketch on YZ plane
sketch9 = body.newObject("Sketcher::SketchObject", "Sketch008")
sketch9.AttachmentSupport = (doc.getObject("YZ_Plane"), [""])
sketch9.MapMode = "FlatFace"
sketch9.AttachmentOffset = App.Placement(Vector(0, 0, -72.5), App.Rotation())
sketch9.addGeometry(Part.LineSegment(Vector(207.015667, 384.125, 0), Vector(138.515667, 384.125, 0)), False)
sketch9.addGeometry(Part.LineSegment(Vector(138.515667, 384.125, 0), Vector(138.515667, 415.875, 0)), False)
sketch9.addGeometry(Part.LineSegment(Vector(138.515667, 415.875, 0), Vector(207.015667, 415.875, 0)), False)
sketch9.addGeometry(Part.LineSegment(Vector(207.015667, 415.875, 0), Vector(207.015667, 384.125, 0)), False)
sketch9.addConstraint(Sketcher.Constraint("Coincident", 0, 2, 1, 1))
sketch9.addConstraint(Sketcher.Constraint("Coincident", 1, 2, 2, 1))
sketch9.addConstraint(Sketcher.Constraint("Coincident", 2, 2, 3, 1))
sketch9.addConstraint(Sketcher.Constraint("Coincident", 3, 2, 0, 1))
sketch9.addConstraint(Sketcher.Constraint("Horizontal", 0))
sketch9.addConstraint(Sketcher.Constraint("Vertical", 1))
sketch9.addConstraint(Sketcher.Constraint("Horizontal", 2))
sketch9.addConstraint(Sketcher.Constraint("Vertical", 3))
sketch9.addConstraint(Sketcher.Constraint("DistanceX", 0, 2, 0, 1, Q("68.5 mm")))
sketch9.addConstraint(Sketcher.Constraint("DistanceY", 1, 1, 1, 2, Q("31.75 mm")))
sketch9.addConstraint(Sketcher.Constraint("DistanceY", -1, 1, 0, 2, Q("384.125 mm")))
sketch9.addConstraint(Sketcher.Constraint("DistanceX", -1, 1, 0, 2, Q("138.515667 mm")))
sketch9.setExpression("Constraints[8]", "Params.sketch9_width")
sketch9.setExpression("Constraints[9]", "Params.sketch9_height")
pocket4 = body.newObject("PartDesign::Pocket", "Pocket003")
pocket4.Profile = sketch9
pocket4.Type = "ThroughAll"
pocket4.Reversed = True

doc.recompute()
